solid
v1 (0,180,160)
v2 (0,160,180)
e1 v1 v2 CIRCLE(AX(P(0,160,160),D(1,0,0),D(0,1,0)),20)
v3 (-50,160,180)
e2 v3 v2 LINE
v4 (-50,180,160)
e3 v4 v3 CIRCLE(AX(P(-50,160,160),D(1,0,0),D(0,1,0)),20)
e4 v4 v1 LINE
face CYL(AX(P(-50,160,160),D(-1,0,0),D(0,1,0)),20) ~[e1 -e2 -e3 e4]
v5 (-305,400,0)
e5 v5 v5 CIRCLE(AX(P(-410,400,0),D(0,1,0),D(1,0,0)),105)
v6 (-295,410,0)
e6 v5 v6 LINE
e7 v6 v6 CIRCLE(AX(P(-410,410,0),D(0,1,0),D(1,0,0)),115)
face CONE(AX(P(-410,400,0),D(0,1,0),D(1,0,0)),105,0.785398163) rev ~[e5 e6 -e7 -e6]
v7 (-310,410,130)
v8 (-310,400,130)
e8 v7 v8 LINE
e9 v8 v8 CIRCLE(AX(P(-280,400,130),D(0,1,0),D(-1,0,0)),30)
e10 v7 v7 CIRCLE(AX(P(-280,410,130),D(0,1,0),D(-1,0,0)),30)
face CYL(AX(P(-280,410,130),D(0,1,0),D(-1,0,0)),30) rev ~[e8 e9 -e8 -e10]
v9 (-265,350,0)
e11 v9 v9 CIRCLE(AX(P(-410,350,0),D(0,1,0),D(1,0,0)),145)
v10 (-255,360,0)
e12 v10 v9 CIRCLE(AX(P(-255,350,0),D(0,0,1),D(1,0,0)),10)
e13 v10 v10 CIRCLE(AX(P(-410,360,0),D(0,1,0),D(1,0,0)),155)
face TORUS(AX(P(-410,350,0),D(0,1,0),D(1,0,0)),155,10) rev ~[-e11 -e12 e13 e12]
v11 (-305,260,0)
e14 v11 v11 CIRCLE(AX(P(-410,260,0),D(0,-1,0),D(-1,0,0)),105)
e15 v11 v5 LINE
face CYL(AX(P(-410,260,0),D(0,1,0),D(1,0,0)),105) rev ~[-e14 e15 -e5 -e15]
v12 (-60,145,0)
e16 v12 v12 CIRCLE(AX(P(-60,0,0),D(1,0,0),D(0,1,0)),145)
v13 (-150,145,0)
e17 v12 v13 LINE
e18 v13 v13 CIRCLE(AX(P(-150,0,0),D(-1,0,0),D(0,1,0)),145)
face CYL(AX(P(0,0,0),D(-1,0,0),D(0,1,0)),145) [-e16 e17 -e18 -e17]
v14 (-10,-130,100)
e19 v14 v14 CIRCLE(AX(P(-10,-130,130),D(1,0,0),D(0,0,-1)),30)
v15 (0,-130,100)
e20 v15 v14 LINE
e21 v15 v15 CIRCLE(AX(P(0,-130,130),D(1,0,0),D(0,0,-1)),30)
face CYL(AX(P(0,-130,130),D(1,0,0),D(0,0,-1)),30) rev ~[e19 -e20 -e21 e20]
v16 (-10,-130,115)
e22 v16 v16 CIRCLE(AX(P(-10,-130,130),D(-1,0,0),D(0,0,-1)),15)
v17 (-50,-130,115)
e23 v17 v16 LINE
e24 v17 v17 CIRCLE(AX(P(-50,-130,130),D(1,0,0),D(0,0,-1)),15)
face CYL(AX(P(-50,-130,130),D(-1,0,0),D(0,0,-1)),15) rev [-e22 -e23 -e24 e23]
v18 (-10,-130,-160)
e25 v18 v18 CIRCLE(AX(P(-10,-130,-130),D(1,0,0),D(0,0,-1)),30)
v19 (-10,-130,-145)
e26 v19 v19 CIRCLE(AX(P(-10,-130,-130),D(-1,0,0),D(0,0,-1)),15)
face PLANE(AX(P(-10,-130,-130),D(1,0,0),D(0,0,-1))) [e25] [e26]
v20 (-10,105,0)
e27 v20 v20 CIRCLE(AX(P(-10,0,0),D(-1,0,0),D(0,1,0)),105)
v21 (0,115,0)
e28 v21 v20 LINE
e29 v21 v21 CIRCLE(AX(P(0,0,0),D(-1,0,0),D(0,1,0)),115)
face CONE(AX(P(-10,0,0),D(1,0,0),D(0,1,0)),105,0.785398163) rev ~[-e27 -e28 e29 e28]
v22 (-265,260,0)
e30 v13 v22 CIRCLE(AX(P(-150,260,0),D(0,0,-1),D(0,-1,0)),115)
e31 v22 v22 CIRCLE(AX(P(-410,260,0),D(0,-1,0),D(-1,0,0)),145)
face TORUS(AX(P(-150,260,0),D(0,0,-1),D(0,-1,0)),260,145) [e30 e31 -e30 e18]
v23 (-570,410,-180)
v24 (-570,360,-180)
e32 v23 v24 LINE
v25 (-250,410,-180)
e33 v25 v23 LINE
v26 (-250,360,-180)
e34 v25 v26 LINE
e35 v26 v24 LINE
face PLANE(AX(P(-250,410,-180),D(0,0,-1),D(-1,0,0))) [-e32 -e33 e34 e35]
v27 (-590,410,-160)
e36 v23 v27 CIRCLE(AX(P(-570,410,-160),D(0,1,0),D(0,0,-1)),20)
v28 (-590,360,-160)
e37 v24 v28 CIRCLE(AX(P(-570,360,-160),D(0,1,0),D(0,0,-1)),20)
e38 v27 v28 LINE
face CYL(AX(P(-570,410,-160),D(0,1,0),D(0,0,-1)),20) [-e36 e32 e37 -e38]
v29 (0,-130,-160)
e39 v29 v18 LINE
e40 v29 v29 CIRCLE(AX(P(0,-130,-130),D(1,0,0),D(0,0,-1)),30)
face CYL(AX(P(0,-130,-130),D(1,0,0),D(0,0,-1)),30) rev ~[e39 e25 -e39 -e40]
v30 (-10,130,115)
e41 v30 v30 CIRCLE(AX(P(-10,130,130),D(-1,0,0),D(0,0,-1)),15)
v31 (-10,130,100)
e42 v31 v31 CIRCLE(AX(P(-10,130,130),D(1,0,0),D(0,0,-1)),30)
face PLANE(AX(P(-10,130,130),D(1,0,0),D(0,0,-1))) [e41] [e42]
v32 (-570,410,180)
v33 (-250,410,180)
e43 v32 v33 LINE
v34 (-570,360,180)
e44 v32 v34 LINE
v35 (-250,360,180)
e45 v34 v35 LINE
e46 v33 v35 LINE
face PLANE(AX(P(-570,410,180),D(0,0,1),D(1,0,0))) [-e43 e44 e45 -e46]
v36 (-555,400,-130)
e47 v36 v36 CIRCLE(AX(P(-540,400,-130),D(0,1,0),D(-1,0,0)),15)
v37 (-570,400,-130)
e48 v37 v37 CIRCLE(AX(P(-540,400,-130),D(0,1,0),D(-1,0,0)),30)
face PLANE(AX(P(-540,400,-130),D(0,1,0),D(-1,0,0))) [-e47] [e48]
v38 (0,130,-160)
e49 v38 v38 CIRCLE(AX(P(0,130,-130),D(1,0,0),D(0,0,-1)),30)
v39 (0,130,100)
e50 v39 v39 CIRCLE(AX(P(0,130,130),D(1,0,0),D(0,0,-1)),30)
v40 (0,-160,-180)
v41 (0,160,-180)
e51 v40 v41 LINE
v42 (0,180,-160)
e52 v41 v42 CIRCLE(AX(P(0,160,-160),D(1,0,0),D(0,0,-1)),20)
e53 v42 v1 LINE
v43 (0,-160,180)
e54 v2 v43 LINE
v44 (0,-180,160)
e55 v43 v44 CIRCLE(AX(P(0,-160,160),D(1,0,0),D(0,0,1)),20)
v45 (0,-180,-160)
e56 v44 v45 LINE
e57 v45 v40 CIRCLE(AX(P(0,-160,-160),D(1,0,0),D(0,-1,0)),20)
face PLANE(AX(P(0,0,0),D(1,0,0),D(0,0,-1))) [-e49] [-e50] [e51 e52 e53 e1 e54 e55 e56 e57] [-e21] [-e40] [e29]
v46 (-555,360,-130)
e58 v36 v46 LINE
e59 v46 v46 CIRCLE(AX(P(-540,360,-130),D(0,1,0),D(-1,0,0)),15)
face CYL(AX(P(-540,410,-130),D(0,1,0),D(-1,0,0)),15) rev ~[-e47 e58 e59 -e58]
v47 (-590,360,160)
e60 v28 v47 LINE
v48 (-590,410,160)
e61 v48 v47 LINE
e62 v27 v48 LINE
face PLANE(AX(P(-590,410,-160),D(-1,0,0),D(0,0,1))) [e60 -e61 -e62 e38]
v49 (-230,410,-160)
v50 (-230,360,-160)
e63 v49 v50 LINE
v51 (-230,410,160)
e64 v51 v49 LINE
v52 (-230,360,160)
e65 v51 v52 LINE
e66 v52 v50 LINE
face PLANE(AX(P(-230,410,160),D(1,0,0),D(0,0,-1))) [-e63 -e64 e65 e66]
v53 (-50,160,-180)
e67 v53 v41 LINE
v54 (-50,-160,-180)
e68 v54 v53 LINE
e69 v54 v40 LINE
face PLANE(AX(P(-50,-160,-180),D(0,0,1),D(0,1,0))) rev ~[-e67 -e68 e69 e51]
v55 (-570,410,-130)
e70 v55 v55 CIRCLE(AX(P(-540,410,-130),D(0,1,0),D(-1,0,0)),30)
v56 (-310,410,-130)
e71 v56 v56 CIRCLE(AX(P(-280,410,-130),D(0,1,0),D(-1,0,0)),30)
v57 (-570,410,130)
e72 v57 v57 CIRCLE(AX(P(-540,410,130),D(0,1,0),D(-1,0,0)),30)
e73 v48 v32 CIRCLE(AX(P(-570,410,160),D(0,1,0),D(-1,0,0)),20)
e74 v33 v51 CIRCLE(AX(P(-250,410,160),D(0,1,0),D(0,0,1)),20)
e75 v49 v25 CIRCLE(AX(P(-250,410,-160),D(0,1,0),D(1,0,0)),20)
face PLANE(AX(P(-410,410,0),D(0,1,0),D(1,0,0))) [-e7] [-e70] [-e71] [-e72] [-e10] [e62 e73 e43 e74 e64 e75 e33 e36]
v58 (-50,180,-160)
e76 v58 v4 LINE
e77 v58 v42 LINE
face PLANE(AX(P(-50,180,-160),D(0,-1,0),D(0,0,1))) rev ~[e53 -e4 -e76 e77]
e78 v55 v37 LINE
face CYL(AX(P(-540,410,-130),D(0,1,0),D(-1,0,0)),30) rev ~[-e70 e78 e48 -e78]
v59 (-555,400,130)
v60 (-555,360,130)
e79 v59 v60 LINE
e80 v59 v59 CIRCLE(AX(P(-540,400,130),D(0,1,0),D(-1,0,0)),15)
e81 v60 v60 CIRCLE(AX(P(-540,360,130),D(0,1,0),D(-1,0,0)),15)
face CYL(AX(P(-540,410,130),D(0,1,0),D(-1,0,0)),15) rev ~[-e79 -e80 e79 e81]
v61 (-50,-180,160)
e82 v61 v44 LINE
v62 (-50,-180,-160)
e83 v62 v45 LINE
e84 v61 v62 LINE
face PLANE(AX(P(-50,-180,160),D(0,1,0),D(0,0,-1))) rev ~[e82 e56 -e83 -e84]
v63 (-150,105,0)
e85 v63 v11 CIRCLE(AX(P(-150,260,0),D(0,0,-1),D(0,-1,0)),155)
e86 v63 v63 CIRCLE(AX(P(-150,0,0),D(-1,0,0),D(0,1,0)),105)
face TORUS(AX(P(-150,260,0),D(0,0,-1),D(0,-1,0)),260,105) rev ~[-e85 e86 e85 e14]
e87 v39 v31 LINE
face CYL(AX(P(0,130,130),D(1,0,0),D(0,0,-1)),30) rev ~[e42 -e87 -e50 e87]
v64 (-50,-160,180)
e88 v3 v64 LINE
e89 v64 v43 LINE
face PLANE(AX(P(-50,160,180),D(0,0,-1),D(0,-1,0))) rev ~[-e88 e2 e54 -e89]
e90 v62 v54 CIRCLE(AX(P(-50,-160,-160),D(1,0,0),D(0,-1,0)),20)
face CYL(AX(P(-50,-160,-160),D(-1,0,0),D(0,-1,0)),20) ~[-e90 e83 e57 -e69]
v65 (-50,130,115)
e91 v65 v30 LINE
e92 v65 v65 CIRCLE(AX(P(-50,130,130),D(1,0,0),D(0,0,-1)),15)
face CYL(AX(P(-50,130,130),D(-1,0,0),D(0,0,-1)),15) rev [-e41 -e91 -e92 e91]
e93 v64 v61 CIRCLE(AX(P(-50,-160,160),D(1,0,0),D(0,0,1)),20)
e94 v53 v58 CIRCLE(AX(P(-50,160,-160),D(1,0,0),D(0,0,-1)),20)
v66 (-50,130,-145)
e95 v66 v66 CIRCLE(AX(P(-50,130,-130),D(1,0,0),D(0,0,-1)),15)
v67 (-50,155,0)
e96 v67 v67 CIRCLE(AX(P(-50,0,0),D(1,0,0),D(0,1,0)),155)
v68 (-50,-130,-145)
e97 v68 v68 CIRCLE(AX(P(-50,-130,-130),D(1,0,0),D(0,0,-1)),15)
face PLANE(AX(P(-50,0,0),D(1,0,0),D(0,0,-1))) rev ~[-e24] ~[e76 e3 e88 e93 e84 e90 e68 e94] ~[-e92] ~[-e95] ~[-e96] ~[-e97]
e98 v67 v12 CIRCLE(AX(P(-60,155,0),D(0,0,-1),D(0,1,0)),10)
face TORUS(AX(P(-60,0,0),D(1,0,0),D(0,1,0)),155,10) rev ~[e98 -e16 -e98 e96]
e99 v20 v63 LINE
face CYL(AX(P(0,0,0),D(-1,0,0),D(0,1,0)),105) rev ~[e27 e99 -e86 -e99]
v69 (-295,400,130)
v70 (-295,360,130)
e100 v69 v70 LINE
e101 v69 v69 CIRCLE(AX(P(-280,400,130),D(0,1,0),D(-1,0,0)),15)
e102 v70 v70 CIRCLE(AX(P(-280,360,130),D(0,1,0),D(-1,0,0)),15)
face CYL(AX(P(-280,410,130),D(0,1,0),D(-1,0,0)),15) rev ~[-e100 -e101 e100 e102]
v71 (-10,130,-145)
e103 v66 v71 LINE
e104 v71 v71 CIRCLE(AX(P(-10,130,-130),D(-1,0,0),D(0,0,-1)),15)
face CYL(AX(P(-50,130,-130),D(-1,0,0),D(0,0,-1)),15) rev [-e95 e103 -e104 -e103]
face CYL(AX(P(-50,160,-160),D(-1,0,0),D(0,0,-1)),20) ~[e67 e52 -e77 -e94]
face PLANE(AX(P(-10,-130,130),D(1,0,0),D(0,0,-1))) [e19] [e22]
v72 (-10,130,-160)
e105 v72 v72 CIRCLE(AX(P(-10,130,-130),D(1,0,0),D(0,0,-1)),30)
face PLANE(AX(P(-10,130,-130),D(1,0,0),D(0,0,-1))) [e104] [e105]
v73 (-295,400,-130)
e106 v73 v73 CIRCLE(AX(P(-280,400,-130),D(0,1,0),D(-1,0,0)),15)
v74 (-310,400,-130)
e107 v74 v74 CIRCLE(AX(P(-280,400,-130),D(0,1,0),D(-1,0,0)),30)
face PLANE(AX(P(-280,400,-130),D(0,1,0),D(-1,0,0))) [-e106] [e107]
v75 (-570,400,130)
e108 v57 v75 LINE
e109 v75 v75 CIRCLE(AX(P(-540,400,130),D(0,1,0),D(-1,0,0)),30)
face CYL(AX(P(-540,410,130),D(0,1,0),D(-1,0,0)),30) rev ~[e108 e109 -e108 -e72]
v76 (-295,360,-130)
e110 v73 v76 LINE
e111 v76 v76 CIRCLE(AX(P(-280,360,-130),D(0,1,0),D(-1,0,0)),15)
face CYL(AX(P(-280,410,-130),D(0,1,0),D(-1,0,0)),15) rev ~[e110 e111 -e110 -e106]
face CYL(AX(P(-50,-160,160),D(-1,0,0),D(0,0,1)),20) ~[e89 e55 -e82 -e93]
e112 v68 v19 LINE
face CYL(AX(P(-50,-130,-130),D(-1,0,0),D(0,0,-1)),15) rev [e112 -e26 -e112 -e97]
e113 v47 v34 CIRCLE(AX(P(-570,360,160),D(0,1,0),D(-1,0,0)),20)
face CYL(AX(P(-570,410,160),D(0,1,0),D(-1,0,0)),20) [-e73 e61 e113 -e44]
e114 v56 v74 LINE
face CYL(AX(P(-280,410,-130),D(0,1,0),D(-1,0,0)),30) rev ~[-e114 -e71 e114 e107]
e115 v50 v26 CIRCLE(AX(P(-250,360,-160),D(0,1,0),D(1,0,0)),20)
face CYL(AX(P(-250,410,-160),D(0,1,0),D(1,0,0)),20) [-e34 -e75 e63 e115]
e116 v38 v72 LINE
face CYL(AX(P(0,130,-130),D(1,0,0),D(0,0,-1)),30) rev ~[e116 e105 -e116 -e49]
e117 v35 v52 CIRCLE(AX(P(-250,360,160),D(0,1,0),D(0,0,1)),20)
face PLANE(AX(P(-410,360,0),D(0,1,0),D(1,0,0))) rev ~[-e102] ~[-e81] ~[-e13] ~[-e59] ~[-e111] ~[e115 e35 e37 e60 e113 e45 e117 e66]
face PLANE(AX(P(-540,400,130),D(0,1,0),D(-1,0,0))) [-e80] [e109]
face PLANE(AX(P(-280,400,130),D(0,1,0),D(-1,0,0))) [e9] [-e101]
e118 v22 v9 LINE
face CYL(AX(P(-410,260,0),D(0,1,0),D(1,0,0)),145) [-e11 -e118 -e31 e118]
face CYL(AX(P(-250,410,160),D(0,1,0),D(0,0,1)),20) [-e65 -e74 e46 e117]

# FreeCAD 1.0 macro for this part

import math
import FreeCAD as App
import Part
import Sketcher

V = App.Vector


def edges_at(feature, points):
    """Names of the edges that pass closest to the given points."""
    edges = feature.Shape.Edges
    near = lambda p: min(range(len(edges)), key=lambda i: edges[i].distToShape(Part.Vertex(*p))[0])
    return sorted({f"Edge{near(p) + 1}" for p in points})

doc = App.newDocument("Part")
body = doc.addObject("PartDesign::Body", "Body")

# Sketch on XZ plane
sketch1 = doc.addObject("Sketcher::SketchObject", "Sketch")
body.addObject(sketch1)
sketch1.AttachmentSupport = (doc.XZ_Plane, [""])
sketch1.MapMode = "FlatFace"
sketch1.AttachmentOffset = App.Placement(V(0, 0, -410), App.Rotation())
sketch1.addGeometry([
    Part.Circle(V(-410, 0, 0), V(0, 0, 1), 145),
    Part.Circle(V(-410, 0, 0), V(0, 0, 1), 105),
], False)
sketch1.addConstraint([
    Sketcher.Constraint("Coincident", 1, 3, 0, 3),
    Sketcher.Constraint("PointOnObject", 0, 3, -1),
    Sketcher.Constraint("Diameter", 0, 290.0),
    Sketcher.Constraint("Diameter", 1, 210.0),
    Sketcher.Constraint("DistanceX", 0, 3, -1, 1, 410.0),
])

# Sketch on XY plane
sketch2 = doc.addObject("Sketcher::SketchObject", "Sketch001")
body.addObject(sketch2)
sketch2.AttachmentSupport = (doc.XY_Plane, [""])
sketch2.MapMode = "FlatFace"
sketch2.addGeometry([
    Part.LineSegment(V(0, 0, 0), V(-150, 0, 0)),
    Part.ArcOfCircle(Part.Circle(V(-150, 260, 0), V(0, 0, 1), 260), math.radians(180), math.radians(270)),
    Part.LineSegment(V(-410, 260, 0), V(-410, 410, 0)),
], False)
sketch2.addConstraint([
    Sketcher.Constraint("Tangent", 0, 2, 1, 2),
    Sketcher.Constraint("Tangent", 1, 1, 2, 1),
    Sketcher.Constraint("Horizontal", 0),
    Sketcher.Constraint("Vertical", 2),
    Sketcher.Constraint("Coincident", 0, 1, -1, 1),
    Sketcher.Constraint("Equal", 0, 2),
    Sketcher.Constraint("Radius", 1, 260.0),
    Sketcher.Constraint("DistanceX", 0, 2, 0, 1, 150.0),
])
doc.recompute()

additivepipe = doc.addObject("PartDesign::AdditivePipe", "AdditivePipe")
body.addObject(additivepipe)
additivepipe.Profile = sketch1
additivepipe.Spine = (sketch2, ["Edge1", "Edge2", "Edge3"])

# Sketch on YZ plane
sketch3 = doc.addObject("Sketcher::SketchObject", "Sketch002")
body.addObject(sketch3)
sketch3.AttachmentSupport = (doc.YZ_Plane, [""])
sketch3.MapMode = "FlatFace"
sketch3.AttachmentOffset = App.Placement(V(0, 0, -50), App.Rotation())
sketch3.addGeometry([
    Part.LineSegment(V(-180, 160, 0), V(-180, -160, 0)),  # 0
    Part.ArcOfCircle(Part.Circle(V(-160, -160, 0), V(0, 0, 1), 20), math.radians(180), math.radians(270)),  # 1
    Part.LineSegment(V(-160, -180, 0), V(160, -180, 0)),  # 2
    Part.ArcOfCircle(Part.Circle(V(160, -160, 0), V(0, 0, 1), 20), math.radians(-90), math.radians(0)),  # 3
    Part.LineSegment(V(180, -160, 0), V(180, 160, 0)),  # 4
    Part.ArcOfCircle(Part.Circle(V(160, 160, 0), V(0, 0, 1), 20), math.radians(0), math.radians(90)),  # 5
    Part.LineSegment(V(160, 180, 0), V(-160, 180, 0)),  # 6
    Part.ArcOfCircle(Part.Circle(V(-160, 160, 0), V(0, 0, 1), 20), math.radians(90), math.radians(180)),  # 7
    Part.Circle(V(-130, 130, 0), V(0, 0, 1), 15),  # 8
    Part.Circle(V(-130, -130, 0), V(0, 0, 1), 15),  # 9
    Part.Circle(V(130, 130, 0), V(0, 0, 1), 15),  # 10
    Part.Circle(V(0, 0, 0), V(0, 0, 1), 145),  # 11
    Part.Circle(V(130, -130, 0), V(0, 0, 1), 15),  # 12
], False)
sketch3.addConstraint([
    Sketcher.Constraint("Tangent", 0, 2, 1, 1),
    Sketcher.Constraint("Tangent", 1, 2, 2, 1),
    Sketcher.Constraint("Tangent", 2, 2, 3, 1),
    Sketcher.Constraint("Tangent", 3, 2, 4, 1),
    Sketcher.Constraint("Tangent", 4, 2, 5, 1),
    Sketcher.Constraint("Tangent", 5, 2, 6, 1),
    Sketcher.Constraint("Tangent", 6, 2, 7, 1),
    Sketcher.Constraint("Tangent", 7, 2, 0, 1),
    Sketcher.Constraint("Vertical", 0),
    Sketcher.Constraint("Horizontal", 2),
    Sketcher.Constraint("Vertical", 4),
    Sketcher.Constraint("Horizontal", 6),
    Sketcher.Constraint("Coincident", 11, 3, -1, 1),
    Sketcher.Constraint("Equal", 1, 3),
    Sketcher.Constraint("Equal", 3, 5),
    Sketcher.Constraint("Equal", 5, 7),
    Sketcher.Constraint("Equal", 8, 9),
    Sketcher.Constraint("Equal", 9, 10),
    Sketcher.Constraint("Equal", 10, 12),
    Sketcher.Constraint("Symmetric", 1, 3, 5, 3, -1, 1),
    Sketcher.Constraint("Symmetric", 9, 3, 10, 3, -1, 1),
    Sketcher.Constraint("Symmetric", 8, 3, 12, 3, -1, 1),
    Sketcher.Constraint("Symmetric", 8, 3, 10, 3, -2),
    Sketcher.Constraint("Equal", 6, 0),
    Sketcher.Constraint("Diameter", 8, 30.0),
    Sketcher.Constraint("Diameter", 11, 290.0),
    Sketcher.Constraint("Radius", 1, 20.0),
    Sketcher.Constraint("DistanceX", 2, 1, 2, 2, 320.0),
    Sketcher.Constraint("DistanceX", 8, 3, -1, 1, 130.0),
    Sketcher.Constraint("DistanceY", -1, 1, 8, 3, 130.0),
])
pad1 = doc.addObject("PartDesign::Pad", "Pad")
body.addObject(pad1)
pad1.Profile = sketch3
pad1.Length = 50
doc.recompute()

chamfer = doc.addObject("PartDesign::Chamfer", "Chamfer")
body.addObject(chamfer)
chamfer.Base = (pad1, edges_at(pad1, [(0, -105, 0)]))
chamfer.Size = 10
doc.recompute()

fillet = doc.addObject("PartDesign::Fillet", "Fillet")
body.addObject(fillet)
fillet.Base = (chamfer, edges_at(chamfer, [(-50, -145, 0)]))
fillet.Radius = 10

# Sketch on XZ plane
sketch4 = doc.addObject("Sketcher::SketchObject", "Sketch003")
body.addObject(sketch4)
sketch4.AttachmentSupport = (doc.XZ_Plane, [""])
sketch4.MapMode = "FlatFace"
sketch4.AttachmentOffset = App.Placement(V(0, 0, -410), App.Rotation())
sketch4.addGeometry([
    Part.LineSegment(V(-570, 180, 0), V(-250, 180, 0)),  # 0
    Part.ArcOfCircle(Part.Circle(V(-250, 160, 0), V(0, 0, 1), 20), math.radians(0), math.radians(90)),  # 1
    Part.LineSegment(V(-230, 160, 0), V(-230, -160, 0)),  # 2
    Part.ArcOfCircle(Part.Circle(V(-250, -160, 0), V(0, 0, 1), 20), math.radians(-90), math.radians(0)),  # 3
    Part.LineSegment(V(-250, -180, 0), V(-570, -180, 0)),  # 4
    Part.ArcOfCircle(Part.Circle(V(-570, -160, 0), V(0, 0, 1), 20), math.radians(180), math.radians(270)),  # 5
    Part.LineSegment(V(-590, -160, 0), V(-590, 160, 0)),  # 6
    Part.ArcOfCircle(Part.Circle(V(-570, 160, 0), V(0, 0, 1), 20), math.radians(90), math.radians(180)),  # 7
    Part.Circle(V(-540, 130, 0), V(0, 0, 1), 15),  # 8
    Part.Circle(V(-280, 130, 0), V(0, 0, 1), 15),  # 9
    Part.Circle(V(-540, -130, 0), V(0, 0, 1), 15),  # 10
    Part.Circle(V(-410, 0, 0), V(0, 0, 1), 145),  # 11
    Part.Circle(V(-280, -130, 0), V(0, 0, 1), 15),  # 12
], False)
sketch4.addConstraint([
    Sketcher.Constraint("Tangent", 0, 2, 1, 2),
    Sketcher.Constraint("Tangent", 1, 1, 2, 1),
    Sketcher.Constraint("Tangent", 2, 2, 3, 2),
    Sketcher.Constraint("Tangent", 3, 1, 4, 1),
    Sketcher.Constraint("Tangent", 4, 2, 5, 2),
    Sketcher.Constraint("Tangent", 5, 1, 6, 1),
    Sketcher.Constraint("Tangent", 6, 2, 7, 2),
    Sketcher.Constraint("Tangent", 7, 1, 0, 1),
    Sketcher.Constraint("Horizontal", 0),
    Sketcher.Constraint("Vertical", 2),
    Sketcher.Constraint("Horizontal", 4),
    Sketcher.Constraint("Vertical", 6),
    Sketcher.Constraint("Equal", 1, 3),
    Sketcher.Constraint("Equal", 3, 5),
    Sketcher.Constraint("Equal", 5, 7),
    Sketcher.Constraint("Equal", 8, 9),
    Sketcher.Constraint("Equal", 9, 10),
    Sketcher.Constraint("Equal", 10, 12),
    Sketcher.Constraint("Symmetric", 8, 3, 10, 3, -1),
    Sketcher.Constraint("Symmetric", 9, 3, 12, 3, -1),
    Sketcher.Constraint("PointOnObject", 11, 3, -1),
    Sketcher.Constraint("Horizontal", 8, 3, 9, 3),
    Sketcher.Constraint("Equal", 4, 2),
    Sketcher.Constraint("Diameter", 8, 30.0),
    Sketcher.Constraint("Diameter", 11, 290.0),
    Sketcher.Constraint("Radius", 1, 20.0),
    Sketcher.Constraint("DistanceX", 0, 1, 0, 2, 320.0),
    Sketcher.Constraint("DistanceX", 1, 3, -1, 1, 250.0),
    Sketcher.Constraint("DistanceY", -1, 1, 1, 3, 160.0),
    Sketcher.Constraint("DistanceX", 8, 3, -1, 1, 540.0),
    Sketcher.Constraint("DistanceY", -1, 1, 8, 3, 130.0),
    Sketcher.Constraint("DistanceX", 9, 3, -1, 1, 280.0),
    Sketcher.Constraint("DistanceX", 11, 3, -1, 1, 410.0),
])
pad2 = doc.addObject("PartDesign::Pad", "Pad001")
body.addObject(pad2)
pad2.Profile = sketch4
pad2.Length = 50
doc.recompute()

chamfer2 = doc.addObject("PartDesign::Chamfer", "Chamfer001")
body.addObject(chamfer2)
chamfer2.Base = (pad2, edges_at(pad2, [(-515, 410, 0)]))
chamfer2.Size = 10
doc.recompute()

fillet2 = doc.addObject("PartDesign::Fillet", "Fillet001")
body.addObject(fillet2)
fillet2.Base = (chamfer2, edges_at(chamfer2, [(-555, 360, 0)]))
fillet2.Radius = 10

# Sketch on XZ plane
sketch5 = doc.addObject("Sketcher::SketchObject", "Sketch004")
body.addObject(sketch5)
sketch5.AttachmentSupport = (doc.XZ_Plane, [""])
sketch5.MapMode = "FlatFace"
sketch5.AttachmentOffset = App.Placement(V(0, 0, -410), App.Rotation())
sketch5.addGeometry([
    Part.Circle(V(-540, -130, 0), V(0, 0, 1), 30),
    Part.Circle(V(-280, -130, 0), V(0, 0, 1), 30),
    Part.Circle(V(-540, 130, 0), V(0, 0, 1), 30),
    Part.Circle(V(-280, 130, 0), V(0, 0, 1), 30),
], False)
sketch5.addConstraint([
    Sketcher.Constraint("Equal", 0, 1),
    Sketcher.Constraint("Equal", 1, 2),
    Sketcher.Constraint("Equal", 2, 3),
    Sketcher.Constraint("Symmetric", 0, 3, 2, 3, -1),
    Sketcher.Constraint("Symmetric", 1, 3, 3, 3, -1),
    Sketcher.Constraint("Horizontal", 0, 3, 1, 3),
    Sketcher.Constraint("Diameter", 0, 60.0),
    Sketcher.Constraint("DistanceX", 0, 3, -1, 1, 540.0),
    Sketcher.Constraint("DistanceY", 0, 3, -1, 1, 130.0),
    Sketcher.Constraint("DistanceX", 1, 3, -1, 1, 280.0),
])
pocket1 = doc.addObject("PartDesign::Pocket", "Pocket")
body.addObject(pocket1)
pocket1.Profile = sketch5
pocket1.Length = 10
pocket1.Reversed = True

# Sketch on YZ plane
sketch6 = doc.addObject("Sketcher::SketchObject", "Sketch005")
body.addObject(sketch6)
sketch6.AttachmentSupport = (doc.YZ_Plane, [""])
sketch6.MapMode = "FlatFace"
sketch6.addGeometry([
    Part.Circle(V(130, 130, 0), V(0, 0, 1), 30),
    Part.Circle(V(130, -130, 0), V(0, 0, 1), 30),
    Part.Circle(V(-130, 130, 0), V(0, 0, 1), 30),
    Part.Circle(V(-130, -130, 0), V(0, 0, 1), 30),
], False)
sketch6.addConstraint([
    Sketcher.Constraint("Equal", 0, 1),
    Sketcher.Constraint("Equal", 1, 2),
    Sketcher.Constraint("Equal", 2, 3),
    Sketcher.Constraint("Symmetric", 1, 3, 2, 3, -1, 1),
    Sketcher.Constraint("Symmetric", 0, 3, 3, 3, -1, 1),
    Sketcher.Constraint("Symmetric", 0, 3, 2, 3, -2),
    Sketcher.Constraint("Diameter", 0, 60.0),
    Sketcher.Constraint("DistanceX", -1, 1, 0, 3, 130.0),
    Sketcher.Constraint("DistanceY", -1, 1, 0, 3, 130.0),
])
pocket2 = doc.addObject("PartDesign::Pocket", "Pocket001")
body.addObject(pocket2)
pocket2.Profile = sketch6
pocket2.Length = 10

doc.recompute()
